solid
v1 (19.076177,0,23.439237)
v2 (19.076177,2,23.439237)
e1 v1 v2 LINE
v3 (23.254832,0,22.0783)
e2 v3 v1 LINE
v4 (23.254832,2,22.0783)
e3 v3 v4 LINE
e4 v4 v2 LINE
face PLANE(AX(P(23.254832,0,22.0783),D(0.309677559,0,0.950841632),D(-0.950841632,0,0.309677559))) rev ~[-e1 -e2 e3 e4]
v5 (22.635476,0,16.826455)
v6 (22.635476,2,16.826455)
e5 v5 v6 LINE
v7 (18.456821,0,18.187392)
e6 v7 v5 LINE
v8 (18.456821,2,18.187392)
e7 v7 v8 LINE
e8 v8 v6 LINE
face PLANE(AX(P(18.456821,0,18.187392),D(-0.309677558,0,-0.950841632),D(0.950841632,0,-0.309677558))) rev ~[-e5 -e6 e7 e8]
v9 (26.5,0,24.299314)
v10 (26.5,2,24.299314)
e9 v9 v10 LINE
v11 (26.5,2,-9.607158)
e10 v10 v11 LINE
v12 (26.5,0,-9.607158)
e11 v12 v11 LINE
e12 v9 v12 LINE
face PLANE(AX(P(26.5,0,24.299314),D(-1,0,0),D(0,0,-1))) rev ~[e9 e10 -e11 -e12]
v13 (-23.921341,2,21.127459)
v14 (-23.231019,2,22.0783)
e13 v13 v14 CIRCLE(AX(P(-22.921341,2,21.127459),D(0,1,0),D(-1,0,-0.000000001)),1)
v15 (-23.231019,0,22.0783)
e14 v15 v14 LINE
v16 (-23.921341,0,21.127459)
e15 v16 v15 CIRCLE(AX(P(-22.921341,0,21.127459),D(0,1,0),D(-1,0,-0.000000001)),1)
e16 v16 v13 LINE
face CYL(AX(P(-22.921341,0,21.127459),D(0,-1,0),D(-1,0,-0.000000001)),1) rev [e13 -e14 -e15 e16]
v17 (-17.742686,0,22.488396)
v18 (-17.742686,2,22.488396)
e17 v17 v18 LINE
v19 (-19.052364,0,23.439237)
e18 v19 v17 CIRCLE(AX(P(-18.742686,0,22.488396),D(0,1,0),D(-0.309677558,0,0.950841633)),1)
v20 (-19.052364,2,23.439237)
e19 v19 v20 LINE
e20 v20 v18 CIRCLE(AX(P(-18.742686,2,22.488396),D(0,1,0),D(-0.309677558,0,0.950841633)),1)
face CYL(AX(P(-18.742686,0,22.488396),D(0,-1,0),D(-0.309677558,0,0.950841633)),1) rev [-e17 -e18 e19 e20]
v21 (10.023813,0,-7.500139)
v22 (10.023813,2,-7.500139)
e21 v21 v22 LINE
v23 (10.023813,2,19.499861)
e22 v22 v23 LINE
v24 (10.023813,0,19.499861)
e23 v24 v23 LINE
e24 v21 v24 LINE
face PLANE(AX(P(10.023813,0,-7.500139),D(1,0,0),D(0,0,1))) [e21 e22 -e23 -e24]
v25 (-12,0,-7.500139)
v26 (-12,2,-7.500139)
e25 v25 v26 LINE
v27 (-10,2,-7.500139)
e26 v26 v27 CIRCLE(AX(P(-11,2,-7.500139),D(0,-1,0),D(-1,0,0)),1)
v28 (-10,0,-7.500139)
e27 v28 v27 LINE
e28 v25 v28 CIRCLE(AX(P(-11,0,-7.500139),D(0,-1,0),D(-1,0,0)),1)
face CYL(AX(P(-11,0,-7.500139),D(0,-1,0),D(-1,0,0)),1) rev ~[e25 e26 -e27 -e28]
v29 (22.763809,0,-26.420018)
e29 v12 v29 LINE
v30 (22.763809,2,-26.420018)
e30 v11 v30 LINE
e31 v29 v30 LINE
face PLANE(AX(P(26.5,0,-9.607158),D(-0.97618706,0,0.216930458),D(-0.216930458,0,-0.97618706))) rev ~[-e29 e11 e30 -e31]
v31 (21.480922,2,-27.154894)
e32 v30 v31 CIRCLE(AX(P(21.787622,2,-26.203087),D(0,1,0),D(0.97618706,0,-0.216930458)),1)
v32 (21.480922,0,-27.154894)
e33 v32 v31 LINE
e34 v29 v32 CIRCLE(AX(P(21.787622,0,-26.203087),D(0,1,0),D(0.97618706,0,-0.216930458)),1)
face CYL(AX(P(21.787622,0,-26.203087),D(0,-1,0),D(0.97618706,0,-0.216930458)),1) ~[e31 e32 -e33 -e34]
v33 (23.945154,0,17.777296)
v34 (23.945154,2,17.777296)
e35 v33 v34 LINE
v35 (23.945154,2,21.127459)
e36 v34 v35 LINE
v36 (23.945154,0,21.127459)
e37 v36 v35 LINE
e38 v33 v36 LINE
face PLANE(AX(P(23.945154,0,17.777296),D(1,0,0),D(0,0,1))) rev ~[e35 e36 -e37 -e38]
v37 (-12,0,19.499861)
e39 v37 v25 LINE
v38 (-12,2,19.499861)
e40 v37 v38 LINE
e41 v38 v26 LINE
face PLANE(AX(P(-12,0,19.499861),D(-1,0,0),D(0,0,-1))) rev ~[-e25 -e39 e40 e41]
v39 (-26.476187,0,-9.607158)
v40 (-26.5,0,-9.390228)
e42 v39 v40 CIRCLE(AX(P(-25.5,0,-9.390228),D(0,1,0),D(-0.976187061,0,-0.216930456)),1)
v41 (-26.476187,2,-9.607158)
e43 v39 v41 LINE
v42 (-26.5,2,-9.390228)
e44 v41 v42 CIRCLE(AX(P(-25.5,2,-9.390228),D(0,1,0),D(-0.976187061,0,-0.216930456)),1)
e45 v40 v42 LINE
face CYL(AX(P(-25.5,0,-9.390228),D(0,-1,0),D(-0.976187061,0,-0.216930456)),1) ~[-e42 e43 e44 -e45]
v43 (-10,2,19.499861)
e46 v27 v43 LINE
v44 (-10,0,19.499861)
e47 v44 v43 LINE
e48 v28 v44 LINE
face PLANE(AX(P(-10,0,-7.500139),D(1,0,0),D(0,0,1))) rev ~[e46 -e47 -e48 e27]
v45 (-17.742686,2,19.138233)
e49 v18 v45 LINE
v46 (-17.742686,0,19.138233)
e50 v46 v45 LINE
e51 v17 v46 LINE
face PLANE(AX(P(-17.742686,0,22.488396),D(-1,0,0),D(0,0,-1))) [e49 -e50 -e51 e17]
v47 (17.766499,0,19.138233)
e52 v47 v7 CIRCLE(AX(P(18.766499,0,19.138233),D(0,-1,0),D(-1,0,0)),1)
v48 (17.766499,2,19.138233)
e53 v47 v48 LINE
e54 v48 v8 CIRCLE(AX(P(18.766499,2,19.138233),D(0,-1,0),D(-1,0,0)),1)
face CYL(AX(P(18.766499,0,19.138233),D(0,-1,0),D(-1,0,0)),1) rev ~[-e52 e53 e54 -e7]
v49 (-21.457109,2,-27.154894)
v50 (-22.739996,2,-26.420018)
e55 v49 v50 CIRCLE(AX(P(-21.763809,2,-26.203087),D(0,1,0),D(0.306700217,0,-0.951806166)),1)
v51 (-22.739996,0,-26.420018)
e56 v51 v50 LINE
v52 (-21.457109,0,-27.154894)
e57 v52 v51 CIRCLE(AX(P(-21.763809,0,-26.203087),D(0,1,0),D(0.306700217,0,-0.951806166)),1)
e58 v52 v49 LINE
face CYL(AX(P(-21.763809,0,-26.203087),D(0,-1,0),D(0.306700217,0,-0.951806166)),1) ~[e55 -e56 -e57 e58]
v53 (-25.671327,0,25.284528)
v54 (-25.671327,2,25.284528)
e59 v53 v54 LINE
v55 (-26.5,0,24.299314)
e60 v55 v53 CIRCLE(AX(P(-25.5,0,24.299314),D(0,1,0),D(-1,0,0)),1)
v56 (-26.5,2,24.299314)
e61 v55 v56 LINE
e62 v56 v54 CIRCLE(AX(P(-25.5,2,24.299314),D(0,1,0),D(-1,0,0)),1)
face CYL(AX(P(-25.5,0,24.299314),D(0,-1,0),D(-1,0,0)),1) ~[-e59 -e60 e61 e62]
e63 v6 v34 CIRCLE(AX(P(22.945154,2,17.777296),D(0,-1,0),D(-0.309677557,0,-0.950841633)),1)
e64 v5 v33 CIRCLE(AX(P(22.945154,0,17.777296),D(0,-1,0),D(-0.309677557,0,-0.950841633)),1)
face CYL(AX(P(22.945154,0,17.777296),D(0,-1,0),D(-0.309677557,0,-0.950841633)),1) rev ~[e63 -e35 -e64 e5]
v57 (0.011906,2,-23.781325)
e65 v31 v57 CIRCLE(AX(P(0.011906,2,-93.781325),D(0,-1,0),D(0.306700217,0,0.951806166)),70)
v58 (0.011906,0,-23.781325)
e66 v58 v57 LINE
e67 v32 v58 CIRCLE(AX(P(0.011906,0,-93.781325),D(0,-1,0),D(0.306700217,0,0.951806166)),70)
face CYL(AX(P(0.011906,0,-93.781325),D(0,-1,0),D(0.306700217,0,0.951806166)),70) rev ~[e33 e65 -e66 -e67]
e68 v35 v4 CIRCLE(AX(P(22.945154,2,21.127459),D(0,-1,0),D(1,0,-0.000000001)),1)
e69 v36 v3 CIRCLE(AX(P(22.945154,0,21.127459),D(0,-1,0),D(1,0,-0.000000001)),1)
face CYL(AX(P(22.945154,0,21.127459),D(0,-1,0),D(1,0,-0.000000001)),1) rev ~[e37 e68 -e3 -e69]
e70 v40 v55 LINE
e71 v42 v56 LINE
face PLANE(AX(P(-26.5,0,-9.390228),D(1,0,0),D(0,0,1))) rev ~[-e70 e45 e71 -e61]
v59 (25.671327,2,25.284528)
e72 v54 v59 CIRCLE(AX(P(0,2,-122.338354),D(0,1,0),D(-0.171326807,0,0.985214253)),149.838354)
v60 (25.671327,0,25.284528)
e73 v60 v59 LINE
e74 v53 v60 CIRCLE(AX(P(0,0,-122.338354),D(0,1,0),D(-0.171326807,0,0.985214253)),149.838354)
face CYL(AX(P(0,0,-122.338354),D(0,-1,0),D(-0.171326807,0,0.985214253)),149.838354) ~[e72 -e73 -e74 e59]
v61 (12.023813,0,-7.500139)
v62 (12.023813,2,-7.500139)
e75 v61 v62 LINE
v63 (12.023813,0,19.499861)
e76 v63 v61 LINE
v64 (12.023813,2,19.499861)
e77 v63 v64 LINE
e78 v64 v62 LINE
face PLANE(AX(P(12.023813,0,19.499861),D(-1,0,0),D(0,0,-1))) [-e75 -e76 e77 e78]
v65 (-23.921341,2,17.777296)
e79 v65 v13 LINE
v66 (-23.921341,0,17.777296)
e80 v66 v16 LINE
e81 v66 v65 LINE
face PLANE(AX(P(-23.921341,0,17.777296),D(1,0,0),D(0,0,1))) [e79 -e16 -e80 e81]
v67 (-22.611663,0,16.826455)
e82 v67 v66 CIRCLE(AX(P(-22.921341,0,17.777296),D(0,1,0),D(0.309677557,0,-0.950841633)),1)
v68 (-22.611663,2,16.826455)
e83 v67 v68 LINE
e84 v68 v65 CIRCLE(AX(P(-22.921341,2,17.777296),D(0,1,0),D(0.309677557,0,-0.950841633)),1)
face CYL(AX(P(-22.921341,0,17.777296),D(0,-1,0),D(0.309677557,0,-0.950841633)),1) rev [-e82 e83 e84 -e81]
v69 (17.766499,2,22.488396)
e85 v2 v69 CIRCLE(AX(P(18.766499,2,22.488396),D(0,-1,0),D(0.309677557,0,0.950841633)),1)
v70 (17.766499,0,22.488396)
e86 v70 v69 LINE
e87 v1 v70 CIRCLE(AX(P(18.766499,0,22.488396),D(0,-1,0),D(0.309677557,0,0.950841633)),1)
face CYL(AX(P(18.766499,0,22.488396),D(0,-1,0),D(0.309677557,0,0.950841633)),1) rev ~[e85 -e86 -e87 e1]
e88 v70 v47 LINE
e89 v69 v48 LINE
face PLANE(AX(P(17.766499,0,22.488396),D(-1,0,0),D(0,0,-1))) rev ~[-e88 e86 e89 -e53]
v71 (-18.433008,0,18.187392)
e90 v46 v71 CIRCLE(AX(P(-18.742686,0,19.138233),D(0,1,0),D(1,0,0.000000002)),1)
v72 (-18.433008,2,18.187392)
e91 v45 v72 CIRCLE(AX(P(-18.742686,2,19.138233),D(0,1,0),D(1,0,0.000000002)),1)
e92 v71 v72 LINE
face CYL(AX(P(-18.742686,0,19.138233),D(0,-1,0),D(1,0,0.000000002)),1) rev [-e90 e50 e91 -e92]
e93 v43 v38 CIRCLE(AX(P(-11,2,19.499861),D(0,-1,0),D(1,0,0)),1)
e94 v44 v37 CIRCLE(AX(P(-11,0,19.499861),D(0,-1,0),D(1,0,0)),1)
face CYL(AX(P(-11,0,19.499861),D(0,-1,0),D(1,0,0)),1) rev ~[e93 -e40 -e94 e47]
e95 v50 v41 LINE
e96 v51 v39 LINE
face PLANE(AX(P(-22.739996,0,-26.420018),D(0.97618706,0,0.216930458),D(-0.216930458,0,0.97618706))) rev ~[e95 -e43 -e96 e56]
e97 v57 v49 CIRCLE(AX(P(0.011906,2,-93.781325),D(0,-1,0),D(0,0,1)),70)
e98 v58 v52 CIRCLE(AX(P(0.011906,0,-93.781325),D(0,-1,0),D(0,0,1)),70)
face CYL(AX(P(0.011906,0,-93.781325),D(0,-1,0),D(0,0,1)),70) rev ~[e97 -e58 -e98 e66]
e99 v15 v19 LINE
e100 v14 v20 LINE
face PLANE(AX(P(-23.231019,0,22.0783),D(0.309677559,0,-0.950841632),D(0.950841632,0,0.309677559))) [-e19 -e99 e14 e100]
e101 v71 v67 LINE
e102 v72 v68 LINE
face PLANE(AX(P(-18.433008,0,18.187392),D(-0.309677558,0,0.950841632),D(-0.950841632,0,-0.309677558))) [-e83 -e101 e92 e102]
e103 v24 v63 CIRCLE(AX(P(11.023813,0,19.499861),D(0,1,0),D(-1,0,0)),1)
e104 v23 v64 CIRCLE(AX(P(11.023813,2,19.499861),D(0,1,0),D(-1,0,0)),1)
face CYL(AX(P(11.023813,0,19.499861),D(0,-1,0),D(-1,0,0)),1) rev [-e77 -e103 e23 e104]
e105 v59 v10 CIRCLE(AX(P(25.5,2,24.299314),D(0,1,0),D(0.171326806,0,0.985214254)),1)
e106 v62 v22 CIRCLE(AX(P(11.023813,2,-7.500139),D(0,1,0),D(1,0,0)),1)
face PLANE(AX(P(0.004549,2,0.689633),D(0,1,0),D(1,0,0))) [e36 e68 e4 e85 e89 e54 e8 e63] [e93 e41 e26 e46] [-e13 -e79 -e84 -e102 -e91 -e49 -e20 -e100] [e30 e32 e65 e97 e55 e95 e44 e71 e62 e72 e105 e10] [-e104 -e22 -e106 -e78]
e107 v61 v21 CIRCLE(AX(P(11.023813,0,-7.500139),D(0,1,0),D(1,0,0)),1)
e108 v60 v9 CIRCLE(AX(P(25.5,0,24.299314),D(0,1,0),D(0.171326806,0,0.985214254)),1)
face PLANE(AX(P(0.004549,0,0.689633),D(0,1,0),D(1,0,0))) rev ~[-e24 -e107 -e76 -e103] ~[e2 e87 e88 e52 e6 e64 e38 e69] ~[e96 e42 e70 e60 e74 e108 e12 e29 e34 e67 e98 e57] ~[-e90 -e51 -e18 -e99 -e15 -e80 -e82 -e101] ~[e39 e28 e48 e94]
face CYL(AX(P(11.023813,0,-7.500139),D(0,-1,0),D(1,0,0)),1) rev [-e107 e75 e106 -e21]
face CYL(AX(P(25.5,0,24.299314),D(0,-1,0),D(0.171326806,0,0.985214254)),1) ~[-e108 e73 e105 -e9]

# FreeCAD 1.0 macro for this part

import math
import FreeCAD as App
import Part
import Sketcher
from FreeCAD import Vector
Q = App.Units.Quantity

doc = App.newDocument("Part")
body = doc.addObject("PartDesign::Body", "Body")

# Sketch on XZ plane
sketch1 = body.newObject("Sketcher::SketchObject", "Sketch")
sketch1.AttachmentSupport = (doc.getObject("XZ_Plane"), [""])
sketch1.MapMode = "FlatFace"
sketch1.addGeometry(Part.LineSegment(Vector(-22.74, -26.42, 0), Vector(-26.48, -9.61, 0)), False)
sketch1.addGeometry(Part.ArcOfCircle(Part.Circle(Vector(-25.5, -9.39, 0), Vector(0, 0, 1), 1), math.radians(-180), math.radians(-167.47)), False)
sketch1.addGeometry(Part.LineSegment(Vector(-26.5, -9.39, 0), Vector(-26.5, 24.3, 0)), False)
sketch1.addGeometry(Part.ArcOfCircle(Part.Circle(Vector(-25.5, 24.3, 0), Vector(0, 0, 1), 1), math.radians(100), math.radians(180)), False)
sketch1.addGeometry(Part.ArcOfCircle(Part.Circle(Vector(0, -122.34, 0), Vector(0, 0, 1), 149.84), math.radians(80.14), math.radians(99.86)), False)
sketch1.addGeometry(Part.ArcOfCircle(Part.Circle(Vector(25.5, 24.3, 0), Vector(0, 0, 1), 1), math.radians(0), math.radians(80)), False)
sketch1.addGeometry(Part.LineSegment(Vector(26.5, 24.3, 0), Vector(26.5, -9.61, 0)), False)
sketch1.addGeometry(Part.LineSegment(Vector(26.5, -9.61, 0), Vector(22.76, -26.42, 0)), False)
sketch1.addGeometry(Part.ArcOfCircle(Part.Circle(Vector(21.79, -26.2, 0), Vector(0, 0, 1), 1), math.radians(-108), math.radians(-13)), False)
sketch1.addGeometry(Part.ArcOfCircle(Part.Circle(Vector(0.01, -93.78, 0), Vector(0, 0, 1), 70), math.radians(72.14), math.radians(90)), False)
sketch1.addGeometry(Part.ArcOfCircle(Part.Circle(Vector(0.01, -93.78, 0), Vector(0, 0, 1), 70), math.radians(90), math.radians(107.86)), False)
sketch1.addGeometry(Part.ArcOfCircle(Part.Circle(Vector(-21.76, -26.2, 0), Vector(0, 0, 1), 1), math.radians(-167), math.radians(-72)), False)
sketch1.addGeometry(Part.LineSegment(Vector(-19.05, 23.44, 0), Vector(-23.23, 22.08, 0)), False)
sketch1.addGeometry(Part.ArcOfCircle(Part.Circle(Vector(-22.92, 21.13, 0), Vector(0, 0, 1), 1), math.radians(108), math.radians(180)), False)
sketch1.addGeometry(Part.LineSegment(Vector(-23.92, 21.13, 0), Vector(-23.92, 17.78, 0)), False)
sketch1.addGeometry(Part.ArcOfCircle(Part.Circle(Vector(-22.92, 17.78, 0), Vector(0, 0, 1), 1), math.radians(-180), math.radians(-72)), False)
sketch1.addGeometry(Part.LineSegment(Vector(-22.61, 16.83, 0), Vector(-18.43, 18.19, 0)), False)
sketch1.addGeometry(Part.ArcOfCircle(Part.Circle(Vector(-18.74, 19.14, 0), Vector(0, 0, 1), 1), math.radians(-72), math.radians(0)), False)
sketch1.addGeometry(Part.LineSegment(Vector(-17.74, 19.14, 0), Vector(-17.74, 22.49, 0)), False)
sketch1.addGeometry(Part.ArcOfCircle(Part.Circle(Vector(-18.74, 22.49, 0), Vector(0, 0, 1), 1), math.radians(0), math.radians(108)), False)
sketch1.addGeometry(Part.ArcOfCircle(Part.Circle(Vector(22.95, 17.78, 0), Vector(0, 0, 1), 1), math.radians(-108), math.radians(0)), False)
sketch1.addGeometry(Part.LineSegment(Vector(23.95, 17.78, 0), Vector(23.95, 21.13, 0)), False)
sketch1.addGeometry(Part.ArcOfCircle(Part.Circle(Vector(22.95, 21.13, 0), Vector(0, 0, 1), 1), math.radians(0), math.radians(72)), False)
sketch1.addGeometry(Part.LineSegment(Vector(23.25, 22.08, 0), Vector(19.08, 23.44, 0)), False)
sketch1.addGeometry(Part.ArcOfCircle(Part.Circle(Vector(18.77, 22.49, 0), Vector(0, 0, 1), 1), math.radians(72), math.radians(180)), False)
sketch1.addGeometry(Part.LineSegment(Vector(17.77, 22.49, 0), Vector(17.77, 19.14, 0)), False)
sketch1.addGeometry(Part.ArcOfCircle(Part.Circle(Vector(18.77, 19.14, 0), Vector(0, 0, 1), 1), math.radians(180), math.radians(252)), False)
sketch1.addGeometry(Part.LineSegment(Vector(18.46, 18.19, 0), Vector(22.64, 16.83, 0)), False)
sketch1.addGeometry(Part.ArcOfCircle(Part.Circle(Vector(-11, -7.5, 0), Vector(0, 0, 1), 1), math.radians(180), math.radians(360)), False)
sketch1.addGeometry(Part.LineSegment(Vector(-10, -7.5, 0), Vector(-10, 19.5, 0)), False)
sketch1.addGeometry(Part.ArcOfCircle(Part.Circle(Vector(-11, 19.5, 0), Vector(0, 0, 1), 1), math.radians(0), math.radians(180)), False)
sketch1.addGeometry(Part.LineSegment(Vector(-12, 19.5, 0), Vector(-12, -7.5, 0)), False)
sketch1.addGeometry(Part.LineSegment(Vector(10.02, 19.5, 0), Vector(10.02, -7.5, 0)), False)
sketch1.addGeometry(Part.ArcOfCircle(Part.Circle(Vector(11.02, -7.5, 0), Vector(0, 0, 1), 1), math.radians(180), math.radians(360)), False)
sketch1.addGeometry(Part.LineSegment(Vector(12.02, -7.5, 0), Vector(12.02, 19.5, 0)), False)
sketch1.addGeometry(Part.ArcOfCircle(Part.Circle(Vector(11.02, 19.5, 0), Vector(0, 0, 1), 1), math.radians(0), math.radians(180)), False)
sketch1.addConstraint(Sketcher.Constraint("Tangent", 0, 2, 1, 2))
sketch1.addConstraint(Sketcher.Constraint("Tangent", 1, 1, 2, 1))
sketch1.addConstraint(Sketcher.Constraint("Tangent", 2, 2, 3, 2))
sketch1.addConstraint(Sketcher.Constraint("Tangent", 3, 1, 4, 2))
sketch1.addConstraint(Sketcher.Constraint("Tangent", 4, 1, 5, 2))
sketch1.addConstraint(Sketcher.Constraint("Tangent", 5, 1, 6, 1))
sketch1.addConstraint(Sketcher.Constraint("Coincident", 6, 2, 7, 1))
sketch1.addConstraint(Sketcher.Constraint("Tangent", 7, 2, 8, 2))
sketch1.addConstraint(Sketcher.Constraint("Tangent", 8, 1, 9, 1))
sketch1.addConstraint(Sketcher.Constraint("Tangent", 9, 2, 10, 1))
sketch1.addConstraint(Sketcher.Constraint("Tangent", 10, 2, 11, 2))
sketch1.addConstraint(Sketcher.Constraint("Tangent", 11, 1, 0, 1))
sketch1.addConstraint(Sketcher.Constraint("Tangent", 12, 2, 13, 1))
sketch1.addConstraint(Sketcher.Constraint("Tangent", 13, 2, 14, 1))
sketch1.addConstraint(Sketcher.Constraint("Tangent", 14, 2, 15, 1))
sketch1.addConstraint(Sketcher.Constraint("Tangent", 15, 2, 16, 1))
sketch1.addConstraint(Sketcher.Constraint("Tangent", 16, 2, 17, 1))
sketch1.addConstraint(Sketcher.Constraint("Tangent", 17, 2, 18, 1))
sketch1.addConstraint(Sketcher.Constraint("Tangent", 18, 2, 19, 1))
sketch1.addConstraint(Sketcher.Constraint("Tangent", 19, 2, 12, 1))
sketch1.addConstraint(Sketcher.Constraint("Tangent", 20, 2, 21, 1))
sketch1.addConstraint(Sketcher.Constraint("Tangent", 21, 2, 22, 1))
sketch1.addConstraint(Sketcher.Constraint("Tangent", 22, 2, 23, 1))
sketch1.addConstraint(Sketcher.Constraint("Tangent", 23, 2, 24, 1))
sketch1.addConstraint(Sketcher.Constraint("Tangent", 24, 2, 25, 1))
sketch1.addConstraint(Sketcher.Constraint("Tangent", 25, 2, 26, 1))
sketch1.addConstraint(Sketcher.Constraint("Tangent", 26, 2, 27, 1))
sketch1.addConstraint(Sketcher.Constraint("Tangent", 27, 2, 20, 1))
sketch1.addConstraint(Sketcher.Constraint("Tangent", 28, 2, 29, 1))
sketch1.addConstraint(Sketcher.Constraint("Tangent", 29, 2, 30, 1))
sketch1.addConstraint(Sketcher.Constraint("Tangent", 30, 2, 31, 1))
sketch1.addConstraint(Sketcher.Constraint("Tangent", 31, 2, 28, 1))
sketch1.addConstraint(Sketcher.Constraint("Tangent", 32, 2, 33, 1))
sketch1.addConstraint(Sketcher.Constraint("Tangent", 33, 2, 34, 1))
sketch1.addConstraint(Sketcher.Constraint("Tangent", 34, 2, 35, 1))
sketch1.addConstraint(Sketcher.Constraint("Tangent", 35, 2, 32, 1))
sketch1.addConstraint(Sketcher.Constraint("Vertical", 2))
sketch1.addConstraint(Sketcher.Constraint("Vertical", 6))
sketch1.addConstraint(Sketcher.Constraint("Vertical", 14))
sketch1.addConstraint(Sketcher.Constraint("Vertical", 18))
sketch1.addConstraint(Sketcher.Constraint("Vertical", 21))
sketch1.addConstraint(Sketcher.Constraint("Vertical", 25))
sketch1.addConstraint(Sketcher.Constraint("Vertical", 29))
sketch1.addConstraint(Sketcher.Constraint("Vertical", 31))
sketch1.addConstraint(Sketcher.Constraint("Vertical", 32))
sketch1.addConstraint(Sketcher.Constraint("Vertical", 34))
sketch1.addConstraint(Sketcher.Constraint("Equal", 1, 3))
sketch1.addConstraint(Sketcher.Constraint("Equal", 3, 5))
sketch1.addConstraint(Sketcher.Constraint("Equal", 5, 8))
sketch1.addConstraint(Sketcher.Constraint("Equal", 9, 10))
sketch1.addConstraint(Sketcher.Constraint("Equal", 8, 11))
sketch1.addConstraint(Sketcher.Constraint("Equal", 11, 13))
sketch1.addConstraint(Sketcher.Constraint("Equal", 13, 15))
sketch1.addConstraint(Sketcher.Constraint("Equal", 15, 17))
sketch1.addConstraint(Sketcher.Constraint("Equal", 17, 19))
sketch1.addConstraint(Sketcher.Constraint("Equal", 19, 20))
sketch1.addConstraint(Sketcher.Constraint("Equal", 20, 22))
sketch1.addConstraint(Sketcher.Constraint("Equal", 22, 24))
sketch1.addConstraint(Sketcher.Constraint("Equal", 24, 26))
sketch1.addConstraint(Sketcher.Constraint("Equal", 26, 28))
sketch1.addConstraint(Sketcher.Constraint("Equal", 30, 33))
sketch1.addConstraint(Sketcher.Constraint("Symmetric", 3, 3, 5, 3, -2))
sketch1.addConstraint(Sketcher.Constraint("Parallel", 12, 16))
sketch1.addConstraint(Sketcher.Constraint("Parallel", 23, 27))
sketch1.addConstraint(Sketcher.Constraint("Horizontal", 8, 3, 11, 3))
sketch1.addConstraint(Sketcher.Constraint("Horizontal", 15, 3, 20, 3))
sketch1.addConstraint(Sketcher.Constraint("Horizontal", 13, 3, 22, 3))
sketch1.addConstraint(Sketcher.Constraint("Horizontal", 19, 3, 24, 3))
sketch1.addConstraint(Sketcher.Constraint("Horizontal", 28, 3, 33, 3))
sketch1.addConstraint(Sketcher.Constraint("Horizontal", 30, 3, 35, 3))
sketch1.addConstraint(Sketcher.Constraint("Horizontal", 0, 2, 6, 2))
sketch1.addConstraint(Sketcher.Constraint("Horizontal", 7, 2, 11, 1))
sketch1.addConstraint(Sketcher.Constraint("Horizontal", 12, 2, 22, 2))
sketch1.addConstraint(Sketcher.Constraint("Vertical", 10, 3, 9, 2))
sketch1.addConstraint(Sketcher.Constraint("Radius", 1, Q("1 mm")))
sketch1.addConstraint(Sketcher.Constraint("Radius", 9, Q("70 mm")))
sketch1.addConstraint(Sketcher.Constraint("DistanceY", 29, 1, 29, 2, Q("27 mm")))
sketch1.addConstraint(Sketcher.Constraint("DistanceX", 28, 3, -1, 1, Q("11 mm")))
sketch1.addConstraint(Sketcher.Constraint("DistanceX", 3, 3, 5, 3, Q("51 mm")))
sketch1.addConstraint(Sketcher.Constraint("Radius", 4, Q("149.838354 mm")))
sketch1.addConstraint(Sketcher.Constraint("DistanceY", 2, 1, 2, 2, Q("33.689542 mm")))
sketch1.addConstraint(Sketcher.Constraint("DistanceX", -1, 1, 24, 3, Q("18.766499 mm")))
sketch1.addConstraint(Sketcher.Constraint("DistanceY", -1, 1, 12, 2, Q("22.0783 mm")))
sketch1.addConstraint(Sketcher.Constraint("DistanceY", 8, 3, 5, 3, Q("50.502401 mm")))
sketch1.addConstraint(Sketcher.Constraint("DistanceY", 15, 3, 19, 3, Q("4.711099 mm")))
sketch1.addConstraint(Sketcher.Constraint("DistanceX", 0, 2, 17, 3, Q("7.733501 mm")))
sketch1.addConstraint(Sketcher.Constraint("DistanceX", 8, 1, 8, 3, Q("0.3067 mm")))
sketch1.addConstraint(Sketcher.Constraint("Distance", 12, Q("4.394691 mm")))
sketch1.addConstraint(Sketcher.Constraint("DistanceY", 14, 2, 14, 1, Q("3.350162 mm")))
sketch1.addConstraint(Sketcher.Constraint("DistanceY", 28, 3, -1, 1, Q("7.500139 mm")))
sketch1.addConstraint(Sketcher.Constraint("DistanceY", 0, 2, -1, 1, Q("9.607158 mm")))
sketch1.addConstraint(Sketcher.Constraint("DistanceX", 33, 3, 8, 3, Q("10.763809 mm")))
pad1 = body.newObject("PartDesign::Pad", "Pad")
pad1.Profile = sketch1
pad1.Length = 2
pad1.Reversed = True

doc.recompute()
